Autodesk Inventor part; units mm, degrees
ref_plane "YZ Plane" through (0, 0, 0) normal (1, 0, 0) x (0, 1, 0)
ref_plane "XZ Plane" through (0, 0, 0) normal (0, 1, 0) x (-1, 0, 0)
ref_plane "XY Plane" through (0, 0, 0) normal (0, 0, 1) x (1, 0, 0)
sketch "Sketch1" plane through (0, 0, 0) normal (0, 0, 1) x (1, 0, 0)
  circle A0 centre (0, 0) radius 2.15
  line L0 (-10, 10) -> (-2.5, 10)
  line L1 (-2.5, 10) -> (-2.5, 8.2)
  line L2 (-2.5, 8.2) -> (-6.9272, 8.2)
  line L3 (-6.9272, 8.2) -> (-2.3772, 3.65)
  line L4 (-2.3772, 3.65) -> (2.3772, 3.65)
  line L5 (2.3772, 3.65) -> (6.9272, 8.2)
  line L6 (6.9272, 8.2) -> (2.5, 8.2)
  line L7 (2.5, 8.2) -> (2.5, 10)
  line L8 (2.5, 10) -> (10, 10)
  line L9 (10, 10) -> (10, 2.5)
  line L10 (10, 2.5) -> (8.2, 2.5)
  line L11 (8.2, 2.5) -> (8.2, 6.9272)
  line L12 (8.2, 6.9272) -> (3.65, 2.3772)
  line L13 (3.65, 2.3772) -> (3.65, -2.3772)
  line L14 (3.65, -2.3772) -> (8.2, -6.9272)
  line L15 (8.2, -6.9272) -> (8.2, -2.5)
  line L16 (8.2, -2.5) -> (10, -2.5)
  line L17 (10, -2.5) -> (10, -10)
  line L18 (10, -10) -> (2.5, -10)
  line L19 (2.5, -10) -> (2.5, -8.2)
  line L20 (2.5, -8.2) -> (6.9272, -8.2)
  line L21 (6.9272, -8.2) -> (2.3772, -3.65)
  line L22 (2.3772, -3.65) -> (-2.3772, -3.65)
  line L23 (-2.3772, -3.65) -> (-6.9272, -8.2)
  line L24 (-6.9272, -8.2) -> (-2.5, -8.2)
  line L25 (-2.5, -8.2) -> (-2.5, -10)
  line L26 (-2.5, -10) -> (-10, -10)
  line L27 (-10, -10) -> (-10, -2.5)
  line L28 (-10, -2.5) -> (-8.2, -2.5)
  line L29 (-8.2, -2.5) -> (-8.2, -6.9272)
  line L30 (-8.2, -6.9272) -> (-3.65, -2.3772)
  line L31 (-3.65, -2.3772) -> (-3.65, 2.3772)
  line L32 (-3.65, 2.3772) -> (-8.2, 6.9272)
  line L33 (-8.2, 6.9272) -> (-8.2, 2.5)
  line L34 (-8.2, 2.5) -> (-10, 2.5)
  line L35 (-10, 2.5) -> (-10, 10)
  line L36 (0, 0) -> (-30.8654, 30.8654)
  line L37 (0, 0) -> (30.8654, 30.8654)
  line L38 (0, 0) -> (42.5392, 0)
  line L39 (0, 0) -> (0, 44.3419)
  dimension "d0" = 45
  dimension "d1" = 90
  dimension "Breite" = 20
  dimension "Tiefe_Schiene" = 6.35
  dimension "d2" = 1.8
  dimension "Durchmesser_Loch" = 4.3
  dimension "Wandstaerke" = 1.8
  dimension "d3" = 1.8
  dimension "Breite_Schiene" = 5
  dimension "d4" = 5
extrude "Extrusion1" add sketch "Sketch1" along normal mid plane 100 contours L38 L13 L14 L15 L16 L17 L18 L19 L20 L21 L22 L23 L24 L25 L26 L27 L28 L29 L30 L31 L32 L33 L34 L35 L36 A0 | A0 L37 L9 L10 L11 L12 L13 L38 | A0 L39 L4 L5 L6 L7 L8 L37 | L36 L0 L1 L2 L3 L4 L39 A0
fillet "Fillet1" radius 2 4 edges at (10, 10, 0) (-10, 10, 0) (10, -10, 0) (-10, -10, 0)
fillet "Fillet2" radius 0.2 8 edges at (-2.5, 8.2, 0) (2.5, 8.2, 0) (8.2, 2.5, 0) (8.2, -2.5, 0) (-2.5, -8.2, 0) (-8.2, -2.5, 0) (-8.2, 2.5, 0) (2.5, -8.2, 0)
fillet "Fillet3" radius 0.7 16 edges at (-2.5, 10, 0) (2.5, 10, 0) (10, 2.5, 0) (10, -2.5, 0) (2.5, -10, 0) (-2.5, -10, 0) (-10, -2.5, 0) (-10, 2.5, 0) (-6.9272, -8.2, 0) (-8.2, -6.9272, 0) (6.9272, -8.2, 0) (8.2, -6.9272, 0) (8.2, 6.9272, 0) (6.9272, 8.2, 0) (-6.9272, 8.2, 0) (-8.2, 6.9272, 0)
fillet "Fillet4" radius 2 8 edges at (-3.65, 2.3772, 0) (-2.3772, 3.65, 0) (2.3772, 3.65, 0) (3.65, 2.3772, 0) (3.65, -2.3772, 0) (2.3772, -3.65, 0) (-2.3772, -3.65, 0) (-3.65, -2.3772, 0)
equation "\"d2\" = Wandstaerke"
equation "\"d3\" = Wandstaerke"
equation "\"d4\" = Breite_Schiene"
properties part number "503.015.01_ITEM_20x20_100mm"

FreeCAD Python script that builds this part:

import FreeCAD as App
import Part
import Sketcher
from FreeCAD import Vector
Q = App.Units.Quantity


def edges_at(feature, points):
    """Names of the edges that pass closest to the given points."""
    edges = feature.Shape.Edges
    near = lambda p: min(range(len(edges)), key=lambda i: edges[i].distToShape(Part.Vertex(*p))[0])
    return sorted({f"Edge{near(p) + 1}" for p in points})

doc = App.newDocument("Part")
body = doc.addObject("PartDesign::Body", "Body")

# Sketch on XY plane
sketch1 = doc.addObject("Sketcher::SketchObject", "Sketch")
body.addObject(sketch1)
sketch1.AttachmentSupport = (doc.XY_Plane, [""])
sketch1.MapMode = "FlatFace"
sketch1.addGeometry([
    Part.LineSegment(Vector(3.65, -2.3772, 0), Vector(3.65, 2.3772, 0)),  # 0
    Part.LineSegment(Vector(3.65, 2.3772, 0), Vector(8.2, 6.9272, 0)),  # 1
    Part.LineSegment(Vector(8.2, 6.9272, 0), Vector(8.2, 2.5, 0)),  # 2
    Part.LineSegment(Vector(8.2, 2.5, 0), Vector(10, 2.5, 0)),  # 3
    Part.LineSegment(Vector(10, 2.5, 0), Vector(10, 10, 0)),  # 4
    Part.LineSegment(Vector(10, 10, 0), Vector(2.5, 10, 0)),  # 5
    Part.LineSegment(Vector(2.5, 10, 0), Vector(2.5, 8.2, 0)),  # 6
    Part.LineSegment(Vector(2.5, 8.2, 0), Vector(6.9272, 8.2, 0)),  # 7
    Part.LineSegment(Vector(6.9272, 8.2, 0), Vector(2.3772, 3.65, 0)),  # 8
    Part.LineSegment(Vector(2.3772, 3.65, 0), Vector(-2.3772, 3.65, 0)),  # 9
    Part.LineSegment(Vector(-2.3772, 3.65, 0), Vector(-6.9272, 8.2, 0)),  # 10
    Part.LineSegment(Vector(-6.9272, 8.2, 0), Vector(-2.5, 8.2, 0)),  # 11
    Part.LineSegment(Vector(-2.5, 8.2, 0), Vector(-2.5, 10, 0)),  # 12
    Part.LineSegment(Vector(-2.5, 10, 0), Vector(-10, 10, 0)),  # 13
    Part.LineSegment(Vector(-10, 10, 0), Vector(-10, 2.5, 0)),  # 14
    Part.LineSegment(Vector(-10, 2.5, 0), Vector(-8.2, 2.5, 0)),  # 15
    Part.LineSegment(Vector(-8.2, 2.5, 0), Vector(-8.2, 6.9272, 0)),  # 16
    Part.LineSegment(Vector(-8.2, 6.9272, 0), Vector(-3.65, 2.3772, 0)),  # 17
    Part.LineSegment(Vector(-3.65, 2.3772, 0), Vector(-3.65, -2.3772, 0)),  # 18
    Part.LineSegment(Vector(-3.65, -2.3772, 0), Vector(-8.2, -6.9272, 0)),  # 19
    Part.LineSegment(Vector(-8.2, -6.9272, 0), Vector(-8.2, -2.5, 0)),  # 20
    Part.LineSegment(Vector(-8.2, -2.5, 0), Vector(-10, -2.5, 0)),  # 21
    Part.LineSegment(Vector(-10, -2.5, 0), Vector(-10, -10, 0)),  # 22
    Part.LineSegment(Vector(-10, -10, 0), Vector(-2.5, -10, 0)),  # 23
    Part.LineSegment(Vector(-2.5, -10, 0), Vector(-2.5, -8.2, 0)),  # 24
    Part.LineSegment(Vector(-2.5, -8.2, 0), Vector(-6.9272, -8.2, 0)),  # 25
    Part.LineSegment(Vector(-6.9272, -8.2, 0), Vector(-2.3772, -3.65, 0)),  # 26
    Part.LineSegment(Vector(-2.3772, -3.65, 0), Vector(2.3772, -3.65, 0)),  # 27
    Part.LineSegment(Vector(2.3772, -3.65, 0), Vector(6.9272, -8.2, 0)),  # 28
    Part.LineSegment(Vector(6.9272, -8.2, 0), Vector(2.5, -8.2, 0)),  # 29
    Part.LineSegment(Vector(2.5, -8.2, 0), Vector(2.5, -10, 0)),  # 30
    Part.LineSegment(Vector(2.5, -10, 0), Vector(10, -10, 0)),  # 31
    Part.LineSegment(Vector(10, -10, 0), Vector(10, -2.5, 0)),  # 32
    Part.LineSegment(Vector(10, -2.5, 0), Vector(8.2, -2.5, 0)),  # 33
    Part.LineSegment(Vector(8.2, -2.5, 0), Vector(8.2, -6.9272, 0)),  # 34
    Part.LineSegment(Vector(8.2, -6.9272, 0), Vector(3.65, -2.3772, 0)),  # 35
    Part.Circle(Vector(0, 0, 0), Vector(0, 0, 1), 2.15),  # 36
], False)
sketch1.addConstraint([
    Sketcher.Constraint("Coincident", 0, 2, 1, 1),
    Sketcher.Constraint("Coincident", 1, 2, 2, 1),
    Sketcher.Constraint("Coincident", 2, 2, 3, 1),
    Sketcher.Constraint("Coincident", 3, 2, 4, 1),
    Sketcher.Constraint("Coincident", 4, 2, 5, 1),
    Sketcher.Constraint("Coincident", 5, 2, 6, 1),
    Sketcher.Constraint("Coincident", 6, 2, 7, 1),
    Sketcher.Constraint("Coincident", 7, 2, 8, 1),
    Sketcher.Constraint("Coincident", 8, 2, 9, 1),
    Sketcher.Constraint("Coincident", 9, 2, 10, 1),
    Sketcher.Constraint("Coincident", 10, 2, 11, 1),
    Sketcher.Constraint("Coincident", 11, 2, 12, 1),
    Sketcher.Constraint("Coincident", 12, 2, 13, 1),
    Sketcher.Constraint("Coincident", 13, 2, 14, 1),
    Sketcher.Constraint("Coincident", 14, 2, 15, 1),
    Sketcher.Constraint("Coincident", 15, 2, 16, 1),
    Sketcher.Constraint("Coincident", 16, 2, 17, 1),
    Sketcher.Constraint("Coincident", 17, 2, 18, 1),
    Sketcher.Constraint("Coincident", 18, 2, 19, 1),
    Sketcher.Constraint("Coincident", 19, 2, 20, 1),
    Sketcher.Constraint("Coincident", 20, 2, 21, 1),
    Sketcher.Constraint("Coincident", 21, 2, 22, 1),
    Sketcher.Constraint("Coincident", 22, 2, 23, 1),
    Sketcher.Constraint("Coincident", 23, 2, 24, 1),
    Sketcher.Constraint("Coincident", 24, 2, 25, 1),
    Sketcher.Constraint("Coincident", 25, 2, 26, 1),
    Sketcher.Constraint("Coincident", 26, 2, 27, 1),
    Sketcher.Constraint("Coincident", 27, 2, 28, 1),
    Sketcher.Constraint("Coincident", 28, 2, 29, 1),
    Sketcher.Constraint("Coincident", 29, 2, 30, 1),
    Sketcher.Constraint("Coincident", 30, 2, 31, 1),
    Sketcher.Constraint("Coincident", 31, 2, 32, 1),
    Sketcher.Constraint("Coincident", 32, 2, 33, 1),
    Sketcher.Constraint("Coincident", 33, 2, 34, 1),
    Sketcher.Constraint("Coincident", 34, 2, 35, 1),
    Sketcher.Constraint("Coincident", 35, 2, 0, 1),
    Sketcher.Constraint("Vertical", 0),
    Sketcher.Constraint("Vertical", 2),
    Sketcher.Constraint("Horizontal", 3),
    Sketcher.Constraint("Vertical", 4),
    Sketcher.Constraint("Horizontal", 5),
    Sketcher.Constraint("Vertical", 6),
    Sketcher.Constraint("Horizontal", 7),
    Sketcher.Constraint("Horizontal", 9),
    Sketcher.Constraint("Horizontal", 11),
    Sketcher.Constraint("Vertical", 12),
    Sketcher.Constraint("Horizontal", 13),
    Sketcher.Constraint("Vertical", 14),
    Sketcher.Constraint("Horizontal", 15),
    Sketcher.Constraint("Vertical", 16),
    Sketcher.Constraint("Vertical", 18),
    Sketcher.Constraint("Vertical", 20),
    Sketcher.Constraint("Horizontal", 21),
    Sketcher.Constraint("Vertical", 22),
    Sketcher.Constraint("Horizontal", 23),
    Sketcher.Constraint("Vertical", 24),
    Sketcher.Constraint("Horizontal", 25),
    Sketcher.Constraint("Horizontal", 27),
    Sketcher.Constraint("Horizontal", 29),
    Sketcher.Constraint("Vertical", 30),
    Sketcher.Constraint("Horizontal", 31),
    Sketcher.Constraint("Vertical", 32),
    Sketcher.Constraint("Horizontal", 33),
    Sketcher.Constraint("Vertical", 34),
    Sketcher.Constraint("Coincident", 36, 3, -1, 1),
    Sketcher.Constraint("Symmetric", 0, 2, 18, 2, -1, 1),
    Sketcher.Constraint("Symmetric", 1, 2, 19, 2, -1, 1),
    Sketcher.Constraint("Symmetric", 3, 2, 21, 2, -1, 1),
    Sketcher.Constraint("Symmetric", 5, 2, 23, 2, -1, 1),
    Sketcher.Constraint("Symmetric", 7, 2, 25, 2, -1, 1),
    Sketcher.Constraint("Symmetric", 8, 2, 26, 2, -1, 1),
    Sketcher.Constraint("Symmetric", 10, 2, 28, 2, -1, 1),
    Sketcher.Constraint("Symmetric", 12, 2, 30, 2, -1, 1),
    Sketcher.Constraint("Symmetric", 14, 2, 32, 2, -1, 1),
    Sketcher.Constraint("Symmetric", 16, 2, 34, 2, -1, 1),
    Sketcher.Constraint("Symmetric", 7, 2, 10, 2, -2),
    Sketcher.Constraint("Symmetric", 5, 2, 12, 2, -2),
    Sketcher.Constraint("Symmetric", 3, 2, 14, 2, -2),
    Sketcher.Constraint("Symmetric", 1, 2, 16, 2, -2),
    Sketcher.Constraint("Parallel", 1, 8),
    Sketcher.Constraint("Perpendicular", 8, 10),
    Sketcher.Constraint("Parallel", 10, 17),
    Sketcher.Constraint("Perpendicular", 26, 28),
    Sketcher.Constraint("Parallel", 28, 35),
    Sketcher.Constraint("Horizontal", 0, 2, 17, 2),
    Sketcher.Constraint("Equal", 27, 0),
    Sketcher.Constraint("Equal", 29, 2),
    Sketcher.Constraint("Equal", 31, 4),
    Sketcher.Constraint("Equal", 33, 6),
    Sketcher.Constraint("Equal", 1, 8),
    Sketcher.Constraint("Diameter", 36, Q("4.3 mm")),
    Sketcher.Constraint("DistanceX", 3, 1, 3, 2, Q("1.8 mm")),
    Sketcher.Constraint("DistanceX", 11, 2, 6, 2, Q("5 mm")),
    Sketcher.Constraint("DistanceX", 0, 2, 3, 2, Q("6.35 mm")),
    Sketcher.Constraint("DistanceX", 5, 2, 5, 1, Q("7.5 mm")),
    Sketcher.Constraint("DistanceX", 7, 1, 7, 2, Q("4.4272 mm")),
])
pad1 = doc.addObject("PartDesign::Pad", "Pad")
body.addObject(pad1)
pad1.Profile = sketch1
pad1.Length = 100
pad1.Midplane = True
doc.recompute()

fillet = doc.addObject("PartDesign::Fillet", "Fillet")
body.addObject(fillet)
fillet.Base = (pad1, edges_at(pad1, [
    (10, 10, 0),
    (-10, 10, 0),
    (10, -10, 0),
    (-10, -10, 0),
]))
fillet.Radius = 2
doc.recompute()

fillet2 = doc.addObject("PartDesign::Fillet", "Fillet001")
body.addObject(fillet2)
fillet2.Base = (fillet, edges_at(fillet, [
    (-2.5, 8.2, 0),
    (2.5, 8.2, 0),
    (8.2, 2.5, 0),
    (8.2, -2.5, 0),
    (-2.5, -8.2, 0),
    (-8.2, -2.5, 0),
    (-8.2, 2.5, 0),
    (2.5, -8.2, 0),
]))
fillet2.Radius = 0.2
doc.recompute()

fillet3 = doc.addObject("PartDesign::Fillet", "Fillet002")
body.addObject(fillet3)
fillet3.Base = (fillet2, edges_at(fillet2, [
    (-2.5, 10, 0),
    (2.5, 10, 0),
    (10, 2.5, 0),
    (10, -2.5, 0),
    (2.5, -10, 0),
    (-2.5, -10, 0),
    (-10, -2.5, 0),
    (-10, 2.5, 0),
    (-6.927, -8.2, 0),
    (-8.2, -6.927, 0),
    (6.927, -8.2, 0),
    (8.2, -6.927, 0),
    (8.2, 6.927, 0),
    (6.927, 8.2, 0),
    (-6.927, 8.2, 0),
    (-8.2, 6.927, 0),
]))
fillet3.Radius = 0.7
doc.recompute()

fillet4 = doc.addObject("PartDesign::Fillet", "Fillet003")
body.addObject(fillet4)
fillet4.Base = (fillet3, edges_at(fillet3, [
    (-3.65, 2.377, 0),
    (-2.377, 3.65, 0),
    (2.377, 3.65, 0),
    (3.65, 2.377, 0),
    (3.65, -2.377, 0),
    (2.377, -3.65, 0),
    (-2.377, -3.65, 0),
    (-3.65, -2.377, 0),
]))
fillet4.Radius = 2

doc.recompute()
